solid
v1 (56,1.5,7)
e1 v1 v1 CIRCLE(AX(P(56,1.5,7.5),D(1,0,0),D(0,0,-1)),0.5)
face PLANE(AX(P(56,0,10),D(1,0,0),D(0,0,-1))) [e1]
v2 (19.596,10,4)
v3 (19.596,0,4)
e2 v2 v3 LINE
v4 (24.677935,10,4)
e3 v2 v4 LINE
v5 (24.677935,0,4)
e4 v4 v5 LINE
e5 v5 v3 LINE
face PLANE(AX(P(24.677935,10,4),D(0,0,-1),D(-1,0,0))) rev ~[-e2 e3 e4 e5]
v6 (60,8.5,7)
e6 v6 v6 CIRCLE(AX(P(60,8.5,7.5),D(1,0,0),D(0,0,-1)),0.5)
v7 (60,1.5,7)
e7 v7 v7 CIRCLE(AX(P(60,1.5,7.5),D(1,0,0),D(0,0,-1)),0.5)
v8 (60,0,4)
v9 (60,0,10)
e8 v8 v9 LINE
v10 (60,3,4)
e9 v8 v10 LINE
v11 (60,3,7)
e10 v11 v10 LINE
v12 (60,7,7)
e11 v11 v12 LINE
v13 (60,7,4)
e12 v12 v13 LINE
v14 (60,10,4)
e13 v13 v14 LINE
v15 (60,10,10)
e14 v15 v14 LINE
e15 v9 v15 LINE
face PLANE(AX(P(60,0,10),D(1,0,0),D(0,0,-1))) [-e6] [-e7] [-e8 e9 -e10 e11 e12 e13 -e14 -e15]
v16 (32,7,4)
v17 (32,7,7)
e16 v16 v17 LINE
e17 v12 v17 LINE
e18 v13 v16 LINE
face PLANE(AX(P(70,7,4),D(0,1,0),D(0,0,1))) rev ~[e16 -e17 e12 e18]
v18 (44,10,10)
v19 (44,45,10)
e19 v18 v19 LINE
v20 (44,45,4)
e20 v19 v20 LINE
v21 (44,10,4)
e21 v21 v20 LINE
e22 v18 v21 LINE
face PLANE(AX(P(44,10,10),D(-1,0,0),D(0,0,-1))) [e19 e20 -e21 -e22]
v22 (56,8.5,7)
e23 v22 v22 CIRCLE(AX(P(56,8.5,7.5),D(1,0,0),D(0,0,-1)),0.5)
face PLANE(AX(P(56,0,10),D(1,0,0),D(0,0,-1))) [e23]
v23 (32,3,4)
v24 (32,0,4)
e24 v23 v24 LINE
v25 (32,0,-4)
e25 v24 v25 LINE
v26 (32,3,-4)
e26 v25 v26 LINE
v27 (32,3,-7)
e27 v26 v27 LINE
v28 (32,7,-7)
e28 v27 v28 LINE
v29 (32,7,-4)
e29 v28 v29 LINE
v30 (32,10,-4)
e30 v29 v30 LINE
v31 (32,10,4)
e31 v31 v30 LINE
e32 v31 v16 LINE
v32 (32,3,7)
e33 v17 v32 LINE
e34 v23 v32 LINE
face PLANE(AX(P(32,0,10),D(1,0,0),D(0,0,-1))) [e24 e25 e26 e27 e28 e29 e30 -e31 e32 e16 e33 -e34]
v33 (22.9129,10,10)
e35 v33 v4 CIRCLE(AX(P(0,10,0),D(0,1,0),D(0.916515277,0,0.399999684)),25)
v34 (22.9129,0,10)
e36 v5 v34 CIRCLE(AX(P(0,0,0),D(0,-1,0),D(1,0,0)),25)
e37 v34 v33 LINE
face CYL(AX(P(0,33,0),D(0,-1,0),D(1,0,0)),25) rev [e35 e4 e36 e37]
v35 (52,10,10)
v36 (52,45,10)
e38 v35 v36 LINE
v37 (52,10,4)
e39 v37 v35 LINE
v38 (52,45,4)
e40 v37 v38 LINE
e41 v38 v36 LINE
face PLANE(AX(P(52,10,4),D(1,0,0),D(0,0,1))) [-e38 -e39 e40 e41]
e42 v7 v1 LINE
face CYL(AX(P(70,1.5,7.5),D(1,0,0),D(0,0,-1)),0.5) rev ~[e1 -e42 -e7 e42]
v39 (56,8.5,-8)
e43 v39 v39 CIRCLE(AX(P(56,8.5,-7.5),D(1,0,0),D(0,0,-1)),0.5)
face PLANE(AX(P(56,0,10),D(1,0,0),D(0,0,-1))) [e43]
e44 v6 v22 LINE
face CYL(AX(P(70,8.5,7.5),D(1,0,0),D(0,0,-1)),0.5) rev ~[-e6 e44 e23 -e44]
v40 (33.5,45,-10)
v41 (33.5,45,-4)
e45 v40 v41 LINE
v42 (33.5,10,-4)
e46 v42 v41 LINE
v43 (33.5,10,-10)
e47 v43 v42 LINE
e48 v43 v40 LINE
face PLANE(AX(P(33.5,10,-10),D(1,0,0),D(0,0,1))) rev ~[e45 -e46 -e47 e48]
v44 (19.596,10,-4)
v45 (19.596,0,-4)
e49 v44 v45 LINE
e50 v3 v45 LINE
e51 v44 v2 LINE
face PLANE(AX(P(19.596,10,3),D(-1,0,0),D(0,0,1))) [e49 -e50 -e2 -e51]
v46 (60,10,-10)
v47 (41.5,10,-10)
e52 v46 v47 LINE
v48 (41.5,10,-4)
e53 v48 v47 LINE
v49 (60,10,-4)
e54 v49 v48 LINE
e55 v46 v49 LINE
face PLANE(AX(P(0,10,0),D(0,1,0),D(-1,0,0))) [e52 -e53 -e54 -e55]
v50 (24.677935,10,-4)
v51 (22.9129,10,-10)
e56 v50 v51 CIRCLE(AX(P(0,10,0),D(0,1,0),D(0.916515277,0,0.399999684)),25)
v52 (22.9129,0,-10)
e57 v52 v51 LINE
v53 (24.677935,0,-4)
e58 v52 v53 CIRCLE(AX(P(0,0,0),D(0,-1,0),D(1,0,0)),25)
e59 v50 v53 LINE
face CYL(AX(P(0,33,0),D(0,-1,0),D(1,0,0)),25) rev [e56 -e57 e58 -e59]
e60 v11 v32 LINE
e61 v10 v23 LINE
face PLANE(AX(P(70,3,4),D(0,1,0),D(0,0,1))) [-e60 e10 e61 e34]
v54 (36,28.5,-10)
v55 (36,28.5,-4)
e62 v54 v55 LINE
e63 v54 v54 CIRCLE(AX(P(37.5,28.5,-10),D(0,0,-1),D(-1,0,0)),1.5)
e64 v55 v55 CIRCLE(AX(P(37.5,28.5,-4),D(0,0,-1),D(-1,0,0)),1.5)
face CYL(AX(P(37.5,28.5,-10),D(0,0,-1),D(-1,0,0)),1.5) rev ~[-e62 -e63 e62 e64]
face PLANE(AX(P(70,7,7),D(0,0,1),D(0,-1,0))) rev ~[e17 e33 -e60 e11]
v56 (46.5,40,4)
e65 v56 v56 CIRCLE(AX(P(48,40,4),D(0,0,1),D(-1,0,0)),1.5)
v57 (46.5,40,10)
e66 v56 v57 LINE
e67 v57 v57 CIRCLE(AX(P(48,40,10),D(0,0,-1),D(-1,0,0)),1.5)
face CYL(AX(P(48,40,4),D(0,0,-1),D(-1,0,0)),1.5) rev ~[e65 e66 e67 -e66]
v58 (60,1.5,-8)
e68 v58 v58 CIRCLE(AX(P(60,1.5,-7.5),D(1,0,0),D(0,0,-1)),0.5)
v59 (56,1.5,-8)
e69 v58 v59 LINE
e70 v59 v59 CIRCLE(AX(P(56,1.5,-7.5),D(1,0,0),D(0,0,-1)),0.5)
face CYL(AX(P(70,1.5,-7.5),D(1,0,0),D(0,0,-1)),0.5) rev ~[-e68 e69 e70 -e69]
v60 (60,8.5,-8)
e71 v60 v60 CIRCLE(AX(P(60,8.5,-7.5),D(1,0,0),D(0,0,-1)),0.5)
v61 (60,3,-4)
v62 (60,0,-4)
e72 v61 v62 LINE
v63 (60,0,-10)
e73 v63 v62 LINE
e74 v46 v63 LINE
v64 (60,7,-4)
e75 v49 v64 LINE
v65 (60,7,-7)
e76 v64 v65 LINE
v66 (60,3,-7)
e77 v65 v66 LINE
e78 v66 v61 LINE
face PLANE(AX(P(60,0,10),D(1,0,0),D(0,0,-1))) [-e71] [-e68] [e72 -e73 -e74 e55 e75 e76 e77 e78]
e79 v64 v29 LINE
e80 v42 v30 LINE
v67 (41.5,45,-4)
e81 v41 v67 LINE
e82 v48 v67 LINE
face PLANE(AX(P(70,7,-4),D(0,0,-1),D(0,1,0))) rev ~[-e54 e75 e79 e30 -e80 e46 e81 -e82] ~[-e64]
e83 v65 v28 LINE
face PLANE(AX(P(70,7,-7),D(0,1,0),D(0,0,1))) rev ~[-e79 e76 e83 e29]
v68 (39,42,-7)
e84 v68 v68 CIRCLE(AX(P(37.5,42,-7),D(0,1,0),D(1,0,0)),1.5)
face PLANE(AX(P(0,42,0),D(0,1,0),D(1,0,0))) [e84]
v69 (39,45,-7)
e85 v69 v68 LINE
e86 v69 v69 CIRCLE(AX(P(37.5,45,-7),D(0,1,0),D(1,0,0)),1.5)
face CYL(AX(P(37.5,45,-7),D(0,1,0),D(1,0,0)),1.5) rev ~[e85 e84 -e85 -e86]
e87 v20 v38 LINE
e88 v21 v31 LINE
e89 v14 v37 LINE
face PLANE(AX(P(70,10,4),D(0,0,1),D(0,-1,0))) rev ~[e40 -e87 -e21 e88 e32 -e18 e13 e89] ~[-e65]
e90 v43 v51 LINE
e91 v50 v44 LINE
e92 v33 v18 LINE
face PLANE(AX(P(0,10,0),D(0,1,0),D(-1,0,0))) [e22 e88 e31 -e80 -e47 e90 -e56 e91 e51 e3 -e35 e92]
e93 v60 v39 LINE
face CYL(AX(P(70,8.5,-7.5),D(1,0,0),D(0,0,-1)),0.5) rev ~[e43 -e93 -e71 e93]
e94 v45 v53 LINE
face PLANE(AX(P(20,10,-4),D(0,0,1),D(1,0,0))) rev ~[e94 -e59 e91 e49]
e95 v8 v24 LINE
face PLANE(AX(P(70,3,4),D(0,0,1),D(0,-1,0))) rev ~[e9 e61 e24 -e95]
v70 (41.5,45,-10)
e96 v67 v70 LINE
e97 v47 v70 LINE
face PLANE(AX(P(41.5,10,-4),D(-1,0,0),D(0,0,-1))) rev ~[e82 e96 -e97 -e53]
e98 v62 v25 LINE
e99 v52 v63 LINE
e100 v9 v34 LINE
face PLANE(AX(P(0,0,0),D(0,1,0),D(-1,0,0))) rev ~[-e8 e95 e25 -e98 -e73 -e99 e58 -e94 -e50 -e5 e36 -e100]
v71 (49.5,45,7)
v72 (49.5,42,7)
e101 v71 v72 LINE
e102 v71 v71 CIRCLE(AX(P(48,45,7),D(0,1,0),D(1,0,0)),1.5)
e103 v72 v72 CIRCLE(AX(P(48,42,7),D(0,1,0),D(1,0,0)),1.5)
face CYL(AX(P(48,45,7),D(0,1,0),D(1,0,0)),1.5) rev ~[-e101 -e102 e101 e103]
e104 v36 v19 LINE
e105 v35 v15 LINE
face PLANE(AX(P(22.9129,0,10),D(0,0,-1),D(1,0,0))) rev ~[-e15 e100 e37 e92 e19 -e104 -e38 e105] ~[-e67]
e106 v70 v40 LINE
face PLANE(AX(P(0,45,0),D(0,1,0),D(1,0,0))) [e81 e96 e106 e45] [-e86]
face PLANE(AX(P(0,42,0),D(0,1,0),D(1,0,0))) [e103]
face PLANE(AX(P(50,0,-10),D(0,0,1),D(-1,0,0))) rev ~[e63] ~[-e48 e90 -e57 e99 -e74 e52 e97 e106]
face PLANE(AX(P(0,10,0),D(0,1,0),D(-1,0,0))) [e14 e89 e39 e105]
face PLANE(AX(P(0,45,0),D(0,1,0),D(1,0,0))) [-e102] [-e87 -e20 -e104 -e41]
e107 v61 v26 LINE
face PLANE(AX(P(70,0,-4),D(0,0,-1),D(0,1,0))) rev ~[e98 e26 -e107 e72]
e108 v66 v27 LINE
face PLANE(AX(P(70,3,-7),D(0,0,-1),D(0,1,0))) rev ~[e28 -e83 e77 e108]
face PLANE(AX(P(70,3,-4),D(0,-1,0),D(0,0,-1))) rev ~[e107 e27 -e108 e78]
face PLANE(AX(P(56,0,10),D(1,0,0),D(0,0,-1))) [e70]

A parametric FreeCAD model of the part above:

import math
import FreeCAD as App
import Part
import Sketcher
Q = App.Units.Quantity


def add_polygon(sketch, points):
    """Adds a closed chain of lines whose ends are joined by coincident constraints."""
    first, n = sketch.GeometryCount, len(points)
    for a, b in zip(points, points[1:] + points[:1]):
        sketch.addGeometry(Part.LineSegment(App.Vector(*a, 0), App.Vector(*b, 0)), False)
    for i in range(n):
        sketch.addConstraint(Sketcher.Constraint("Coincident", first + i, 2, first + (i + 1) % n, 1))

doc = App.newDocument("Part")
body = doc.addObject("PartDesign::Body", "Body")

# Sketch on XZ plane
sketch1 = doc.addObject("Sketcher::SketchObject", "Sketch")
body.addObject(sketch1)
sketch1.AttachmentSupport = (doc.XZ_Plane, [""])
sketch1.MapMode = "FlatFace"
sketch1.addGeometry([
    Part.LineSegment(App.Vector(-51, 49, 0), App.Vector(-35, 37, 0)),  # 0
    Part.LineSegment(App.Vector(-35, 37, 0), App.Vector(-13, 22, 0)),  # 1
    Part.ArcOfCircle(Part.Circle(App.Vector(0, 0, 0), App.Vector(0, 0, 1), 25), math.radians(24), math.radians(120)),  # 2
    Part.LineSegment(App.Vector(23, 10, 0), App.Vector(70, 10, 0)),  # 3
    Part.LineSegment(App.Vector(70, 10, 0), App.Vector(70, -10, 0)),  # 4
    Part.LineSegment(App.Vector(70, -10, 0), App.Vector(23, -10, 0)),  # 5
    Part.ArcOfCircle(Part.Circle(App.Vector(0, 0, 0), App.Vector(0, 0, 1), 25), math.radians(-120), math.radians(-24)),  # 6
    Part.LineSegment(App.Vector(-13, -22, 0), App.Vector(-35, -37, 0)),  # 7
    Part.LineSegment(App.Vector(-35, -37, 0), App.Vector(-51, -49, 0)),  # 8
    Part.LineSegment(App.Vector(-51, -49, 0), App.Vector(-57, -41, 0)),  # 9
    Part.LineSegment(App.Vector(-57, -41, 0), App.Vector(-63, -33, 0)),  # 10
    Part.LineSegment(App.Vector(-63, -33, 0), App.Vector(-46, -21, 0)),  # 11
    Part.LineSegment(App.Vector(-46, -21, 0), App.Vector(-24, -5, 0)),  # 12
    Part.ArcOfCircle(Part.Circle(App.Vector(0, 0, 0), App.Vector(0, 0, 1), 25), math.radians(168), math.radians(192)),  # 13
    Part.LineSegment(App.Vector(-24, 5, 0), App.Vector(-46, 21, 0)),  # 14
    Part.LineSegment(App.Vector(-46, 21, 0), App.Vector(-63, 33, 0)),  # 15
    Part.LineSegment(App.Vector(-63, 33, 0), App.Vector(-51, 49, 0)),  # 16
], False)
sketch1.addConstraint([
    Sketcher.Constraint("Coincident", 0, 2, 1, 1),
    Sketcher.Constraint("Coincident", 1, 2, 2, 2),
    Sketcher.Constraint("Coincident", 2, 1, 3, 1),
    Sketcher.Constraint("Coincident", 3, 2, 4, 1),
    Sketcher.Constraint("Coincident", 4, 2, 5, 1),
    Sketcher.Constraint("Coincident", 5, 2, 6, 2),
    Sketcher.Constraint("Coincident", 6, 1, 7, 1),
    Sketcher.Constraint("Coincident", 7, 2, 8, 1),
    Sketcher.Constraint("Coincident", 8, 2, 9, 1),
    Sketcher.Constraint("Coincident", 9, 2, 10, 1),
    Sketcher.Constraint("Coincident", 10, 2, 11, 1),
    Sketcher.Constraint("Coincident", 11, 2, 12, 1),
    Sketcher.Constraint("Coincident", 12, 2, 13, 2),
    Sketcher.Constraint("Coincident", 13, 1, 14, 1),
    Sketcher.Constraint("Coincident", 14, 2, 15, 1),
    Sketcher.Constraint("Coincident", 15, 2, 16, 1),
    Sketcher.Constraint("Coincident", 16, 2, 0, 1),
    Sketcher.Constraint("Horizontal", 3),
    Sketcher.Constraint("Vertical", 4),
    Sketcher.Constraint("Horizontal", 5),
    Sketcher.Constraint("Coincident", 2, 3, -1, 1),
    Sketcher.Constraint("Coincident", 6, 3, -1, 1),
    Sketcher.Constraint("Coincident", 13, 3, -1, 1),
    Sketcher.Constraint("Equal", 2, 6),
    Sketcher.Constraint("Equal", 6, 13),
    Sketcher.Constraint("Symmetric", 0, 2, 7, 2, -1),
    Sketcher.Constraint("Symmetric", 11, 2, 14, 2, -1),
    Sketcher.Constraint("Symmetric", 10, 2, 15, 2, -1),
    Sketcher.Constraint("Symmetric", 8, 2, 16, 2, -1),
    Sketcher.Constraint("Parallel", 0, 1),
    Sketcher.Constraint("Parallel", 7, 8),
    Sketcher.Constraint("Perpendicular", 8, 9),
    Sketcher.Constraint("Parallel", 9, 10),
    Sketcher.Constraint("Perpendicular", 10, 11),
    Sketcher.Constraint("Parallel", 11, 12),
    Sketcher.Constraint("Parallel", 1, 14),
    Sketcher.Constraint("Vertical", 2, 1, 5, 2),
    Sketcher.Constraint("Equal", 9, 10),
    Sketcher.Constraint("Equal", 8, 11),
    Sketcher.Constraint("Equal", 7, 12),
    Sketcher.Constraint("Equal", 15, 16),
    Sketcher.Constraint("Radius", 2, 25.0),
    Sketcher.Constraint("DistanceY", 4, 2, 4, 1, 20.0),
    Sketcher.Constraint("Angle", 0, Q("-36 deg")),
    Sketcher.Constraint("Distance", 0, 20.0),
    Sketcher.Constraint("DistanceX", -1, 1, 3, 2, 70.0),
    Sketcher.Constraint("DistanceX", 10, 2, 6, 1, 49.85),
])
pad1 = doc.addObject("PartDesign::Pad", "Pad")
body.addObject(pad1)
pad1.Profile = sketch1
pad1.Length = 10
pad1.Reversed = True

# Sketch on an angled plane
sketch2 = doc.addObject("Sketcher::SketchObject", "Sketch001")
body.addObject(sketch2)
sketch2.Placement = App.Placement(App.Vector(-62.509, 0, -33.0548), App.Rotation(App.Vector(-0.587785252, 0, 0.809016994), App.Vector(0, 0.999999999, 0), App.Vector(-0.809016994, 0, -0.587785252), "ZXY"))
add_polygon(sketch2, [(-17, 7), (-17, 3), (-14, 3), (-14, 0), (-6, 0), (-6, 3), (-3, 3), (-3, 7), (-6, 7), (-6, 10), (-14, 10), (-14, 7)])  # lines 0-11
sketch2.addConstraint([
    Sketcher.Constraint("Vertical", 0),
    Sketcher.Constraint("Horizontal", 1),
    Sketcher.Constraint("Vertical", 2),
    Sketcher.Constraint("Horizontal", 3),
    Sketcher.Constraint("Vertical", 4),
    Sketcher.Constraint("Horizontal", 5),
    Sketcher.Constraint("Vertical", 6),
    Sketcher.Constraint("Horizontal", 7),
    Sketcher.Constraint("Vertical", 8),
    Sketcher.Constraint("Horizontal", 9),
    Sketcher.Constraint("Vertical", 10),
    Sketcher.Constraint("Horizontal", 11),
    Sketcher.Constraint("PointOnObject", 2, 2, -1),
    Sketcher.Constraint("Horizontal", 1, 2, 4, 2),
    Sketcher.Constraint("Horizontal", 7, 2, 10, 2),
    Sketcher.Constraint("Vertical", 4, 2, 7, 2),
    Sketcher.Constraint("Vertical", 2, 2, 9, 2),
    Sketcher.Constraint("Equal", 1, 5),
    Sketcher.Constraint("Equal", 11, 2),
    Sketcher.Constraint("Equal", 4, 8),
    Sketcher.Constraint("DistanceX", 1, 1, 1, 2, 3.0),
    Sketcher.Constraint("DistanceX", 3, 1, 3, 2, 8.0),
    Sketcher.Constraint("DistanceY", 0, 2, 0, 1, 4.0),
    Sketcher.Constraint("DistanceX", 1, 2, -1, 1, 14.0),
])
pocket1 = doc.addObject("PartDesign::Pocket", "Pocket")
body.addObject(pocket1)
pocket1.Profile = sketch2
pocket1.Length = 38

# Sketch on an angled plane
sketch3 = doc.addObject("Sketcher::SketchObject", "Sketch002")
body.addObject(sketch3)
sketch3.Placement = App.Placement(App.Vector(-50.7533, 0, 49.2351), App.Rotation(App.Vector(0.587785252, 0, 0.809016994), App.Vector(0, 0.999999999, 0), App.Vector(-0.809016994, 0, 0.587785252), "ZXY"))
add_polygon(sketch3, [(-17, 7), (-17, 3), (-14, 3), (-14, 0), (-6, 0), (-6, 3), (-3, 3), (-3, 7), (-6, 7), (-6, 10), (-14, 10), (-14, 7)])  # lines 0-11
sketch3.addConstraint([
    Sketcher.Constraint("Vertical", 0),
    Sketcher.Constraint("Horizontal", 1),
    Sketcher.Constraint("Vertical", 2),
    Sketcher.Constraint("Horizontal", 3),
    Sketcher.Constraint("Vertical", 4),
    Sketcher.Constraint("Horizontal", 5),
    Sketcher.Constraint("Vertical", 6),
    Sketcher.Constraint("Horizontal", 7),
    Sketcher.Constraint("Vertical", 8),
    Sketcher.Constraint("Horizontal", 9),
    Sketcher.Constraint("Vertical", 10),
    Sketcher.Constraint("Horizontal", 11),
    Sketcher.Constraint("PointOnObject", 2, 2, -1),
    Sketcher.Constraint("Horizontal", 1, 2, 4, 2),
    Sketcher.Constraint("Horizontal", 7, 2, 10, 2),
    Sketcher.Constraint("Vertical", 4, 2, 7, 2),
    Sketcher.Constraint("Vertical", 2, 2, 9, 2),
    Sketcher.Constraint("Equal", 1, 5),
    Sketcher.Constraint("Equal", 11, 2),
    Sketcher.Constraint("Equal", 4, 8),
    Sketcher.Constraint("DistanceX", 1, 1, 1, 2, 3.0),
    Sketcher.Constraint("DistanceX", 3, 1, 3, 2, 8.0),
    Sketcher.Constraint("DistanceY", 0, 2, 0, 1, 4.0),
    Sketcher.Constraint("DistanceX", 1, 2, -1, 1, 14.0),
])
pocket2 = doc.addObject("PartDesign::Pocket", "Pocket001")
body.addObject(pocket2)
pocket2.Profile = sketch3
pocket2.Length = 38

# Sketch on YZ plane
sketch4 = doc.addObject("Sketcher::SketchObject", "Sketch003")
body.addObject(sketch4)
sketch4.AttachmentSupport = (doc.YZ_Plane, [""])
sketch4.MapMode = "FlatFace"
sketch4.AttachmentOffset = App.Placement(App.Vector(0, 0, 70), App.Rotation())
add_polygon(sketch4, [(0, 4), (0, -4), (3, -4), (3, -7), (7, -7), (7, -4), (10, -4), (10, 4), (7, 4), (7, 7), (3, 7), (3, 4)])  # lines 0-11
sketch4.addConstraint([
    Sketcher.Constraint("Vertical", 0),
    Sketcher.Constraint("Horizontal", 1),
    Sketcher.Constraint("Vertical", 2),
    Sketcher.Constraint("Horizontal", 3),
    Sketcher.Constraint("Vertical", 4),
    Sketcher.Constraint("Horizontal", 5),
    Sketcher.Constraint("Vertical", 6),
    Sketcher.Constraint("Horizontal", 7),
    Sketcher.Constraint("Vertical", 8),
    Sketcher.Constraint("Horizontal", 9),
    Sketcher.Constraint("Vertical", 10),
    Sketcher.Constraint("Horizontal", 11),
    Sketcher.Constraint("Symmetric", 0, 2, 11, 2, -1, 1),
    Sketcher.Constraint("Symmetric", 4, 2, 7, 2, -1),
    Sketcher.Constraint("Symmetric", 2, 2, 9, 2, -1),
    Sketcher.Constraint("Horizontal", 1, 2, 4, 2),
    Sketcher.Constraint("Equal", 1, 5),
    Sketcher.Constraint("Equal", 11, 2),
    Sketcher.Constraint("DistanceX", 1, 1, 1, 2, 3.0),
    Sketcher.Constraint("DistanceX", 3, 1, 3, 2, 4.0),
    Sketcher.Constraint("DistanceY", 0, 2, 0, 1, 8.0),
])
pocket3 = doc.addObject("PartDesign::Pocket", "Pocket002")
body.addObject(pocket3)
pocket3.Profile = sketch4
pocket3.Length = 38

# Sketch on YZ plane
sketch5 = doc.addObject("Sketcher::SketchObject", "Sketch004")
body.addObject(sketch5)
sketch5.AttachmentSupport = (doc.YZ_Plane, [""])
sketch5.MapMode = "FlatFace"
sketch5.AttachmentOffset = App.Placement(App.Vector(0, 0, 70), App.Rotation())
add_polygon(sketch5, [(0, -10), (10, -10), (10, 10), (0, 10)])  # lines 0-3
sketch5.addGeometry(Part.Circle(App.Vector(1.5, 7.5, 0), App.Vector(0, 0, 1), 0.5), False)  # 4
sketch5.addGeometry(Part.Circle(App.Vector(1.5, -7.5, 0), App.Vector(0, 0, 1), 0.5), False)  # 5
sketch5.addGeometry(Part.Circle(App.Vector(8.5, 7.5, 0), App.Vector(0, 0, 1), 0.5), False)  # 6
sketch5.addGeometry(Part.Circle(App.Vector(8.5, -7.5, 0), App.Vector(0, 0, 1), 0.5), False)  # 7
sketch5.addConstraint([
    Sketcher.Constraint("Horizontal", 0),
    Sketcher.Constraint("Vertical", 1),
    Sketcher.Constraint("Horizontal", 2),
    Sketcher.Constraint("Vertical", 3),
    Sketcher.Constraint("Equal", 4, 5),
    Sketcher.Constraint("Equal", 5, 6),
    Sketcher.Constraint("Equal", 6, 7),
    Sketcher.Constraint("Symmetric", 2, 2, 3, 2, -1, 1),
    Sketcher.Constraint("Symmetric", 4, 3, 5, 3, -1),
    Sketcher.Constraint("Symmetric", 6, 3, 7, 3, -1),
    Sketcher.Constraint("Horizontal", 4, 3, 6, 3),
    Sketcher.Constraint("Diameter", 4, 1.0),
    Sketcher.Constraint("DistanceY", 1, 1, 1, 2, 20.0),
    Sketcher.Constraint("DistanceY", 0, 2, 7, 3, 2.5),
    Sketcher.Constraint("DistanceX", 0, 1, 0, 2, 10.0),
    Sketcher.Constraint("DistanceX", 4, 3, 6, 3, 7.0),
    Sketcher.Constraint("DistanceX", -1, 1, 4, 3, 1.5),
])
pocket4 = doc.addObject("PartDesign::Pocket", "Pocket003")
body.addObject(pocket4)
pocket4.Profile = sketch5
pocket4.Length = 10

# Sketch on YZ plane
sketch6 = doc.addObject("Sketcher::SketchObject", "Sketch005")
body.addObject(sketch6)
sketch6.AttachmentSupport = (doc.YZ_Plane, [""])
sketch6.MapMode = "FlatFace"
sketch6.AttachmentOffset = App.Placement(App.Vector(0, 0, 70), App.Rotation())
sketch6.addGeometry([
    Part.Circle(App.Vector(8.5, 7.5, 0), App.Vector(0, 0, 1), 0.5),
    Part.Circle(App.Vector(1.5, 7.5, 0), App.Vector(0, 0, 1), 0.5),
    Part.Circle(App.Vector(1.5, -7.5, 0), App.Vector(0, 0, 1), 0.5),
    Part.Circle(App.Vector(8.5, -7.5, 0), App.Vector(0, 0, 1), 0.5),
], False)
sketch6.addConstraint([
    Sketcher.Constraint("Equal", 0, 1),
    Sketcher.Constraint("Equal", 1, 2),
    Sketcher.Constraint("Equal", 2, 3),
    Sketcher.Constraint("Symmetric", 1, 3, 2, 3, -1),
    Sketcher.Constraint("Symmetric", 0, 3, 3, 3, -1),
    Sketcher.Constraint("Horizontal", 0, 3, 1, 3),
    Sketcher.Constraint("Diameter", 0, 1.0),
    Sketcher.Constraint("DistanceX", 1, 3, 0, 3, 7.0),
    Sketcher.Constraint("DistanceY", 2, 3, 1, 3, 15.0),
    Sketcher.Constraint("DistanceX", -1, 1, 0, 3, 8.5),
])
pocket5 = doc.addObject("PartDesign::Pocket", "Pocket004")
body.addObject(pocket5)
pocket5.Profile = sketch6
pocket5.Length = 14

# Sketch on an angled plane
sketch7 = doc.addObject("Sketcher::SketchObject", "Sketch006")
body.addObject(sketch7)
sketch7.Placement = App.Placement(App.Vector(-50.7533, 0, -49.2351), App.Rotation(App.Vector(-0.587785252, 0, 0.809016994), App.Vector(0, 0.999999999, 0), App.Vector(-0.809016994, 0, -0.587785252), "ZXY"))
add_polygon(sketch7, [(20, 0), (20, 10), (0, 10), (0, 0)])  # lines 0-3
sketch7.addGeometry(Part.Circle(App.Vector(2.5, 1.5, 0), App.Vector(0, 0, 1), 0.5), False)  # 4
sketch7.addGeometry(Part.Circle(App.Vector(17.5, 1.5, 0), App.Vector(0, 0, 1), 0.5), False)  # 5
sketch7.addGeometry(Part.Circle(App.Vector(2.5, 8.5, 0), App.Vector(0, 0, 1), 0.5), False)  # 6
sketch7.addGeometry(Part.Circle(App.Vector(17.5, 8.5, 0), App.Vector(0, 0, 1), 0.5), False)  # 7
sketch7.addConstraint([
    Sketcher.Constraint("Vertical", 0),
    Sketcher.Constraint("Horizontal", 1),
    Sketcher.Constraint("Vertical", 2),
    Sketcher.Constraint("Horizontal", 3),
    Sketcher.Constraint("Coincident", 2, 2, -1, 1),
    Sketcher.Constraint("Equal", 4, 5),
    Sketcher.Constraint("Equal", 5, 6),
    Sketcher.Constraint("Equal", 6, 7),
    Sketcher.Constraint("Horizontal", 4, 3, 5, 3),
    Sketcher.Constraint("Horizontal", 6, 3, 7, 3),
    Sketcher.Constraint("Vertical", 4, 3, 6, 3),
    Sketcher.Constraint("Vertical", 5, 3, 7, 3),
    Sketcher.Constraint("Diameter", 4, 1.0),
    Sketcher.Constraint("DistanceX", 1, 2, 1, 1, 20.0),
    Sketcher.Constraint("DistanceX", -1, 1, 4, 3, 2.5),
    Sketcher.Constraint("DistanceX", 7, 3, 0, 2, 2.5),
    Sketcher.Constraint("DistanceY", 0, 1, 0, 2, 10.0),
    Sketcher.Constraint("DistanceY", 4, 3, 6, 3, 7.0),
    Sketcher.Constraint("DistanceY", -1, 1, 4, 3, 1.5),
])
pocket6 = doc.addObject("PartDesign::Pocket", "Pocket005")
body.addObject(pocket6)
pocket6.Profile = sketch7
pocket6.Length = 10

# Sketch on an angled plane
sketch8 = doc.addObject("Sketcher::SketchObject", "Sketch007")
body.addObject(sketch8)
sketch8.Placement = App.Placement(App.Vector(-50.7533, 0, -49.2351), App.Rotation(App.Vector(-0.587785252, 0, 0.809016994), App.Vector(0, 0.999999999, 0), App.Vector(-0.809016994, 0, -0.587785252), "ZXY"))
sketch8.addGeometry([
    Part.Circle(App.Vector(2.5, 8.5, 0), App.Vector(0, 0, 1), 0.5),
    Part.Circle(App.Vector(2.5, 1.5, 0), App.Vector(0, 0, 1), 0.5),
    Part.Circle(App.Vector(17.5, 1.5, 0), App.Vector(0, 0, 1), 0.5),
    Part.Circle(App.Vector(17.5, 8.5, 0), App.Vector(0, 0, 1), 0.5),
], False)
sketch8.addConstraint([
    Sketcher.Constraint("Equal", 0, 1),
    Sketcher.Constraint("Equal", 1, 2),
    Sketcher.Constraint("Equal", 2, 3),
    Sketcher.Constraint("Horizontal", 1, 3, 2, 3),
    Sketcher.Constraint("Horizontal", 0, 3, 3, 3),
    Sketcher.Constraint("Vertical", 0, 3, 1, 3),
    Sketcher.Constraint("Vertical", 2, 3, 3, 3),
    Sketcher.Constraint("Diameter", 0, 1.0),
    Sketcher.Constraint("DistanceX", -1, 1, 0, 3, 2.5),
    Sketcher.Constraint("DistanceY", 1, 3, 0, 3, 7.0),
    Sketcher.Constraint("DistanceX", 1, 3, 2, 3, 15.0),
    Sketcher.Constraint("DistanceY", -1, 1, 0, 3, 8.5),
])
pocket7 = doc.addObject("PartDesign::Pocket", "Pocket006")
body.addObject(pocket7)
pocket7.Profile = sketch8
pocket7.Length = 14

# Sketch on an angled plane
sketch9 = doc.addObject("Sketcher::SketchObject", "Sketch008")
body.addObject(sketch9)
sketch9.Placement = App.Placement(App.Vector(-62.509, 0, 33.0548), App.Rotation(App.Vector(0.587785252, 0, 0.809016994), App.Vector(0, 0.999999999, 0), App.Vector(-0.809016994, 0, 0.587785252), "ZXY"))
add_polygon(sketch9, [(20, 0), (20, 10), (0, 10), (0, 0)])  # lines 0-3
sketch9.addGeometry(Part.Circle(App.Vector(2.5, 1.5, 0), App.Vector(0, 0, 1), 0.5), False)  # 4
sketch9.addGeometry(Part.Circle(App.Vector(17.5, 1.5, 0), App.Vector(0, 0, 1), 0.5), False)  # 5
sketch9.addGeometry(Part.Circle(App.Vector(2.5, 8.5, 0), App.Vector(0, 0, 1), 0.5), False)  # 6
sketch9.addGeometry(Part.Circle(App.Vector(17.5, 8.5, 0), App.Vector(0, 0, 1), 0.5), False)  # 7
sketch9.addConstraint([
    Sketcher.Constraint("Vertical", 0),
    Sketcher.Constraint("Horizontal", 1),
    Sketcher.Constraint("Vertical", 2),
    Sketcher.Constraint("Horizontal", 3),
    Sketcher.Constraint("Coincident", 2, 2, -1, 1),
    Sketcher.Constraint("Equal", 4, 5),
    Sketcher.Constraint("Equal", 5, 6),
    Sketcher.Constraint("Equal", 6, 7),
    Sketcher.Constraint("Horizontal", 4, 3, 5, 3),
    Sketcher.Constraint("Horizontal", 6, 3, 7, 3),
    Sketcher.Constraint("Vertical", 4, 3, 6, 3),
    Sketcher.Constraint("Vertical", 5, 3, 7, 3),
    Sketcher.Constraint("Diameter", 4, 1.0),
    Sketcher.Constraint("DistanceX", 1, 2, 1, 1, 20.0),
    Sketcher.Constraint("DistanceX", -1, 1, 4, 3, 2.5),
    Sketcher.Constraint("DistanceX", 7, 3, 0, 2, 2.5),
    Sketcher.Constraint("DistanceY", 0, 1, 0, 2, 10.0),
    Sketcher.Constraint("DistanceY", 4, 3, 6, 3, 7.0),
    Sketcher.Constraint("DistanceY", -1, 1, 4, 3, 1.5),
])
pocket8 = doc.addObject("PartDesign::Pocket", "Pocket007")
body.addObject(pocket8)
pocket8.Profile = sketch9
pocket8.Length = 10

# Sketch on an angled plane
sketch10 = doc.addObject("Sketcher::SketchObject", "Sketch009")
body.addObject(sketch10)
sketch10.Placement = App.Placement(App.Vector(-62.509, 0, 33.0548), App.Rotation(App.Vector(0.587785252, 0, 0.809016994), App.Vector(0, 0.999999999, 0), App.Vector(-0.809016994, 0, 0.587785252), "ZXY"))
sketch10.addGeometry([
    Part.Circle(App.Vector(2.5, 8.5, 0), App.Vector(0, 0, 1), 0.5),
    Part.Circle(App.Vector(2.5, 1.5, 0), App.Vector(0, 0, 1), 0.5),
    Part.Circle(App.Vector(17.5, 1.5, 0), App.Vector(0, 0, 1), 0.5),
    Part.Circle(App.Vector(17.5, 8.5, 0), App.Vector(0, 0, 1), 0.5),
], False)
sketch10.addConstraint([
    Sketcher.Constraint("Equal", 0, 1),
    Sketcher.Constraint("Equal", 1, 2),
    Sketcher.Constraint("Equal", 2, 3),
    Sketcher.Constraint("Horizontal", 1, 3, 2, 3),
    Sketcher.Constraint("Horizontal", 0, 3, 3, 3),
    Sketcher.Constraint("Vertical", 0, 3, 1, 3),
    Sketcher.Constraint("Vertical", 2, 3, 3, 3),
    Sketcher.Constraint("Diameter", 0, 1.0),
    Sketcher.Constraint("DistanceX", -1, 1, 0, 3, 2.5),
    Sketcher.Constraint("DistanceY", 1, 3, 0, 3, 7.0),
    Sketcher.Constraint("DistanceX", 1, 3, 2, 3, 15.0),
    Sketcher.Constraint("DistanceY", -1, 1, 0, 3, 8.5),
])
pocket9 = doc.addObject("PartDesign::Pocket", "Pocket008")
body.addObject(pocket9)
pocket9.Profile = sketch10
pocket9.Length = 14

# Sketch on XZ plane
sketch11 = doc.addObject("Sketcher::SketchObject", "Sketch010")
body.addObject(sketch11)
sketch11.AttachmentSupport = (doc.XZ_Plane, [""])
sketch11.MapMode = "FlatFace"
sketch11.AttachmentOffset = App.Placement(App.Vector(0, 0, -10), App.Rotation())
add_polygon(sketch11, [(52, 4), (44, 4), (44, 10), (52, 10)])  # lines 0-3
add_polygon(sketch11, [(34, -10), (34, -4), (42, -4), (42, -10)])  # lines 4-7
add_polygon(sketch11, [(-21, 28), (-25, 23), (-31, 28), (-28, 32)])  # lines 8-11
add_polygon(sketch11, [(-48, 22), (-44, 27), (-38, 23), (-41, 18)])  # lines 12-15
add_polygon(sketch11, [(-33, -12), (-29, -16), (-36, -21), (-39, -16)])  # lines 16-19
add_polygon(sketch11, [(-36, -39), (-40, -34), (-33, -29), (-30, -34)])  # lines 20-23
sketch11.addConstraint([
    Sketcher.Constraint("Horizontal", 0),
    Sketcher.Constraint("Vertical", 1),
    Sketcher.Constraint("Horizontal", 2),
    Sketcher.Constraint("Vertical", 3),
    Sketcher.Constraint("Vertical", 4),
    Sketcher.Constraint("Horizontal", 5),
    Sketcher.Constraint("Vertical", 6),
    Sketcher.Constraint("Horizontal", 7),
    Sketcher.Constraint("Parallel", 8, 10),
    Sketcher.Constraint("Parallel", 9, 11),
    Sketcher.Constraint("Perpendicular", 11, 12),
    Sketcher.Constraint("Perpendicular", 12, 13),
    Sketcher.Constraint("Perpendicular", 13, 14),
    Sketcher.Constraint("Perpendicular", 14, 15),
    Sketcher.Constraint("Perpendicular", 16, 17),
    Sketcher.Constraint("Perpendicular", 17, 18),
    Sketcher.Constraint("Perpendicular", 18, 19),
    Sketcher.Constraint("Perpendicular", 19, 20),
    Sketcher.Constraint("Perpendicular", 20, 21),
    Sketcher.Constraint("Perpendicular", 21, 22),
    Sketcher.Constraint("Perpendicular", 22, 23),
    Sketcher.Constraint("Equal", 2, 5),
    Sketcher.Constraint("Equal", 3, 4),
    Sketcher.Constraint("Equal", 10, 12),
    Sketcher.Constraint("Equal", 11, 13),
    Sketcher.Constraint("Equal", 14, 16),
    Sketcher.Constraint("Equal", 15, 17),
    Sketcher.Constraint("Equal", 18, 20),
    Sketcher.Constraint("Equal", 19, 21),
    Sketcher.Constraint("DistanceX", 0, 2, 0, 1, 8.0),
    Sketcher.Constraint("Distance", 9, 8.0),
    Sketcher.Constraint("DistanceY", 4, 2, 0, 2, 8.0),
    Sketcher.Constraint("DistanceY", 1, 1, 1, 2, 6.0),
    Sketcher.Constraint("Angle", 9, Q("144.0002 deg")),
    Sketcher.Constraint("Angle", 16, Q("-54 deg")),
    Sketcher.Constraint("Distance", 12, 6.0),
    Sketcher.Constraint("DistanceX", -1, 1, 0, 2, 44.0),
    Sketcher.Constraint("DistanceY", -1, 1, 0, 2, 4.0),
    Sketcher.Constraint("DistanceX", -1, 1, 4, 2, 33.5),
    Sketcher.Constraint("DistanceX", 12, 2, -1, 1, 44.42),
    Sketcher.Constraint("DistanceX", 19, 2, -1, 1, 32.98),
    Sketcher.Constraint("DistanceX", 9, 2, 16, 2, 1.77),
    Sketcher.Constraint("DistanceY", -1, 1, 8, 2, 22.927),
    Sketcher.Constraint("DistanceX", 10, 2, -1, 1, 27.661),
    Sketcher.Constraint("DistanceY", 17, 2, -1, 1, 21.157),
    Sketcher.Constraint("DistanceY", 20, 2, -1, 1, 33.801),
    Sketcher.Constraint("DistanceX", 22, 2, -1, 1, 29.719),
    Sketcher.Constraint("DistanceY", 12, 2, 10, 2, 5.129),
])
pad2 = doc.addObject("PartDesign::Pad", "Pad001")
body.addObject(pad2)
pad2.Profile = sketch11
pad2.Length = 35
pad2.Reversed = True

# Sketch on XY plane
sketch12 = doc.addObject("Sketcher::SketchObject", "Sketch011")
body.addObject(sketch12)
sketch12.AttachmentSupport = (doc.XY_Plane, [""])
sketch12.MapMode = "FlatFace"
sketch12.AttachmentOffset = App.Placement(App.Vector(0, 0, -10), App.Rotation())
sketch12.addGeometry(Part.Circle(App.Vector(37.5, 28.5, 0), App.Vector(0, 0, 1), 1.5), False)
sketch12.addConstraint([
    Sketcher.Constraint("Diameter", 0, 3.0),
    Sketcher.Constraint("DistanceX", -1, 1, 0, 3, 37.5),
    Sketcher.Constraint("DistanceY", -1, 1, 0, 3, 28.5),
])
pocket10 = doc.addObject("PartDesign::Pocket", "Pocket009")
body.addObject(pocket10)
pocket10.Profile = sketch12
pocket10.Type = "UpToFirst"
pocket10.Reversed = True

# Sketch on XY plane
sketch13 = doc.addObject("Sketcher::SketchObject", "Sketch012")
body.addObject(sketch13)
sketch13.AttachmentSupport = (doc.XY_Plane, [""])
sketch13.MapMode = "FlatFace"
sketch13.AttachmentOffset = App.Placement(App.Vector(0, 0, 4), App.Rotation())
sketch13.addGeometry(Part.Circle(App.Vector(48, 40, 0), App.Vector(0, 0, 1), 1.5), False)
sketch13.addConstraint([
    Sketcher.Constraint("Diameter", 0, 3.0),
    Sketcher.Constraint("DistanceX", -1, 1, 0, 3, 48.0),
    Sketcher.Constraint("DistanceY", -1, 1, 0, 3, 40.0),
])
pocket11 = doc.addObject("PartDesign::Pocket", "Pocket010")
body.addObject(pocket11)
pocket11.Profile = sketch13
pocket11.Type = "UpToFirst"
pocket11.Reversed = True

# Sketch on an angled plane
sketch14 = doc.addObject("Sketcher::SketchObject", "Sketch013")
body.addObject(sketch14)
sketch14.Placement = App.Placement(App.Vector(-12.6591, 0, -21.558), App.Rotation(App.Vector(-0.809016994, 0, -0.587785252), App.Vector(0, 0.999999999, 0), App.Vector(0.587785252, 0, -0.809016994), "ZXY"))
sketch14.addGeometry(Part.Circle(App.Vector(25.1, 40, 0), App.Vector(0, 0, 1), 1.5), False)
sketch14.addConstraint([
    Sketcher.Constraint("Diameter", 0, 3.0),
    Sketcher.Constraint("DistanceY", -1, 1, 0, 3, 40.0),
    Sketcher.Constraint("DistanceX", -1, 1, 0, 3, 25.087),
])
pocket12 = doc.addObject("PartDesign::Pocket", "Pocket011")
body.addObject(pocket12)
pocket12.Profile = sketch14
pocket12.Type = "UpToFirst"

# Sketch on an angled plane
sketch15 = doc.addObject("Sketcher::SketchObject", "Sketch014")
body.addObject(sketch15)
sketch15.Placement = App.Placement(App.Vector(-28.2397, 7, -15.5731), App.Rotation(App.Vector(-0.809016994, 0, -0.587785252), App.Vector(0, 0.999999999, 0), App.Vector(0.587785252, 0, -0.809016994), "ZXY"))
sketch15.addGeometry(Part.Circle(App.Vector(5.5, 21.5, 0), App.Vector(0, 0, 1), 1.5), False)
sketch15.addConstraint([
    Sketcher.Constraint("Diameter", 0, 3.0),
    Sketcher.Constraint("DistanceX", -1, 1, 0, 3, 5.5),
    Sketcher.Constraint("DistanceY", -1, 1, 0, 3, 21.5),
])
pocket13 = doc.addObject("PartDesign::Pocket", "Pocket012")
body.addObject(pocket13)
pocket13.Profile = sketch15
pocket13.Type = "UpToFirst"

# Sketch on an angled plane
sketch16 = doc.addObject("Sketcher::SketchObject", "Sketch015")
body.addObject(sketch16)
sketch16.Placement = App.Placement(App.Vector(-24.4148, 0, 5.3777), App.Rotation(App.Vector(-0.809016994, 0, 0.587785252), App.Vector(0, 0.999999999, 0), App.Vector(-0.587785252, 0, -0.809016994), "ZXY"))
sketch16.addGeometry(Part.Circle(App.Vector(25.1, 40, 0), App.Vector(0, 0, 1), 1.5), False)
sketch16.addConstraint([
    Sketcher.Constraint("Diameter", 0, 3.0),
    Sketcher.Constraint("DistanceY", -1, 1, 0, 3, 40.0),
    Sketcher.Constraint("DistanceX", -1, 1, 0, 3, 25.087),
])
pocket14 = doc.addObject("PartDesign::Pocket", "Pocket013")
body.addObject(pocket14)
pocket14.Profile = sketch16
pocket14.Type = "UpToFirst"

# Sketch on an angled plane
sketch17 = doc.addObject("Sketcher::SketchObject", "Sketch016")
body.addObject(sketch17)
sketch17.Placement = App.Placement(App.Vector(-23.5374, 7, 22.0452), App.Rotation(App.Vector(-0.809016994, 0, 0.587785252), App.Vector(0, 0.999999999, 0), App.Vector(-0.587785252, 0, -0.809016994), "ZXY"))
sketch17.addGeometry(Part.Circle(App.Vector(5.5, 21.5, 0), App.Vector(0, 0, 1), 1.5), False)
sketch17.addConstraint([
    Sketcher.Constraint("Diameter", 0, 3.0),
    Sketcher.Constraint("DistanceY", -1, 1, 0, 3, 21.5),
    Sketcher.Constraint("DistanceX", -1, 1, 0, 3, 5.4564),
])
pocket15 = doc.addObject("PartDesign::Pocket", "Pocket014")
body.addObject(pocket15)
pocket15.Profile = sketch17
pocket15.Type = "UpToFirst"

# Sketch on XZ plane
sketch18 = doc.addObject("Sketcher::SketchObject", "Sketch017")
body.addObject(sketch18)
sketch18.AttachmentSupport = (doc.XZ_Plane, [""])
sketch18.MapMode = "FlatFace"
sketch18.AttachmentOffset = App.Placement(App.Vector(0, 0, -10), App.Rotation())
sketch18.addGeometry([
    Part.ArcOfCircle(Part.Circle(App.Vector(0, 0, 0), App.Vector(0, 0, 1), 25), math.radians(-135), math.radians(-9)),  # 0
    Part.LineSegment(App.Vector(-17.6, -17.7, 0), App.Vector(-15.6, -16.3, 0)),  # 1
    Part.LineSegment(App.Vector(-15.6, -16.3, 0), App.Vector(-14.5, -15.5, 0)),  # 2
    Part.LineSegment(App.Vector(-14.5, -15.5, 0), App.Vector(-13.5, -14.8, 0)),  # 3
    Part.ArcOfCircle(Part.Circle(App.Vector(0, 0, 0), App.Vector(0, 0, 1), 20), math.radians(-132), math.radians(-12)),  # 4
    Part.LineSegment(App.Vector(19.6, -4, 0), App.Vector(24.7, -4, 0)),  # 5
    Part.ArcOfCircle(Part.Circle(App.Vector(0, 0, 0), App.Vector(0, 0, 1), 25), math.radians(9), math.radians(135)),  # 6
    Part.LineSegment(App.Vector(24.7, 4, 0), App.Vector(19.6, 4, 0)),  # 7
    Part.ArcOfCircle(Part.Circle(App.Vector(0, 0, 0), App.Vector(0, 0, 1), 20), math.radians(12), math.radians(132)),  # 8
    Part.LineSegment(App.Vector(-13.5, 14.8, 0), App.Vector(-14.5, 15.5, 0)),  # 9
    Part.LineSegment(App.Vector(-14.5, 15.5, 0), App.Vector(-15.6, 16.3, 0)),  # 10
    Part.LineSegment(App.Vector(-15.6, 16.3, 0), App.Vector(-17.6, 17.7, 0)),  # 11
    Part.LineSegment(App.Vector(-20.3, -9.8, 0), App.Vector(-22.3, -11.3, 0)),  # 12
    Part.ArcOfCircle(Part.Circle(App.Vector(0, 0, 0), App.Vector(0, 0, 1), 25), math.radians(153), math.radians(207)),  # 13
    Part.LineSegment(App.Vector(-22.3, 11.3, 0), App.Vector(-20.3, 9.8, 0)),  # 14
    Part.LineSegment(App.Vector(-20.3, 9.8, 0), App.Vector(-19.2, 9, 0)),  # 15
    Part.LineSegment(App.Vector(-19.2, 9, 0), App.Vector(-18.2, 8.3, 0)),  # 16
    Part.ArcOfCircle(Part.Circle(App.Vector(0, 0, 0), App.Vector(0, 0, 1), 20), math.radians(156), math.radians(204)),  # 17
    Part.LineSegment(App.Vector(-18.2, -8.3, 0), App.Vector(-19.2, -9, 0)),  # 18
    Part.LineSegment(App.Vector(-19.2, -9, 0), App.Vector(-20.3, -9.8, 0)),  # 19
], False)
sketch18.addConstraint([
    Sketcher.Constraint("Coincident", 0, 1, 1, 1),
    Sketcher.Constraint("Coincident", 1, 2, 2, 1),
    Sketcher.Constraint("Coincident", 2, 2, 3, 1),
    Sketcher.Constraint("Coincident", 3, 2, 4, 1),
    Sketcher.Constraint("Coincident", 4, 2, 5, 1),
    Sketcher.Constraint("Coincident", 5, 2, 0, 2),
    Sketcher.Constraint("Coincident", 6, 1, 7, 1),
    Sketcher.Constraint("Coincident", 7, 2, 8, 1),
    Sketcher.Constraint("Coincident", 8, 2, 9, 1),
    Sketcher.Constraint("Coincident", 9, 2, 10, 1),
    Sketcher.Constraint("Coincident", 10, 2, 11, 1),
    Sketcher.Constraint("Coincident", 11, 2, 6, 2),
    Sketcher.Constraint("Coincident", 12, 2, 13, 2),
    Sketcher.Constraint("Coincident", 13, 1, 14, 1),
    Sketcher.Constraint("Coincident", 14, 2, 15, 1),
    Sketcher.Constraint("Coincident", 15, 2, 16, 1),
    Sketcher.Constraint("Coincident", 16, 2, 17, 1),
    Sketcher.Constraint("Coincident", 17, 2, 18, 1),
    Sketcher.Constraint("Coincident", 18, 2, 19, 1),
    Sketcher.Constraint("Coincident", 19, 2, 12, 1),
    Sketcher.Constraint("Horizontal", 5),
    Sketcher.Constraint("Horizontal", 7),
    Sketcher.Constraint("Coincident", 0, 3, -1, 1),
    Sketcher.Constraint("Coincident", 4, 3, -1, 1),
    Sketcher.Constraint("Coincident", 6, 3, -1, 1),
    Sketcher.Constraint("Coincident", 8, 3, -1, 1),
    Sketcher.Constraint("Coincident", 13, 3, -1, 1),
    Sketcher.Constraint("Coincident", 17, 3, -1, 1),
    Sketcher.Constraint("Equal", 0, 6),
    Sketcher.Constraint("Equal", 4, 8),
    Sketcher.Constraint("Equal", 6, 13),
    Sketcher.Constraint("Equal", 8, 17),
    Sketcher.Constraint("Symmetric", 2, 2, 9, 2, -1),
    Sketcher.Constraint("Symmetric", 1, 2, 10, 2, -1),
    Sketcher.Constraint("Symmetric", 15, 2, 18, 2, -1),
    Sketcher.Constraint("Symmetric", 14, 2, 19, 2, -1),
    Sketcher.Constraint("Parallel", 1, 2),
    Sketcher.Constraint("Parallel", 2, 3),
    Sketcher.Constraint("Parallel", 9, 10),
    Sketcher.Constraint("Parallel", 10, 11),
    Sketcher.Constraint("Parallel", 3, 12),
    Sketcher.Constraint("Parallel", 11, 14),
    Sketcher.Constraint("Parallel", 14, 15),
    Sketcher.Constraint("Parallel", 15, 16),
    Sketcher.Constraint("Parallel", 12, 18),
    Sketcher.Constraint("Vertical", 5, 2, 6, 1),
    Sketcher.Constraint("Equal", 11, 12),
    Sketcher.Constraint("Equal", 10, 15),
    Sketcher.Constraint("Equal", 9, 16),
    Sketcher.Constraint("Radius", 4, 20.0),
    Sketcher.Constraint("Angle", 1, Q("36 deg")),
    Sketcher.Constraint("Radius", 0, 25.0),
    Sketcher.Constraint("DistanceY", 4, 2, -1, 1, 4.0),
    Sketcher.Constraint("DistanceX", 12, 2, -1, 1, 22.316),
    Sketcher.Constraint("DistanceX", 14, 2, -1, 1, 20.264),
    Sketcher.Constraint("DistanceY", -1, 1, 15, 2, 9.031),
])
pad3 = doc.addObject("PartDesign::Pad", "Pad002")
body.addObject(pad3)
pad3.Profile = sketch18
pad3.Length = 23
pad3.Reversed = True

# Sketch on XZ plane
sketch19 = doc.addObject("Sketcher::SketchObject", "Sketch018")
body.addObject(sketch19)
sketch19.AttachmentSupport = (doc.XZ_Plane, [""])
sketch19.MapMode = "FlatFace"
sketch19.AttachmentOffset = App.Placement(App.Vector(0, 0, -33), App.Rotation())
sketch19.addGeometry([
    Part.Circle(App.Vector(-22.5, 0, 0), App.Vector(0, 0, 1), 1.5),  # 0
    Part.Circle(App.Vector(0, -22.5, 0), App.Vector(0, 0, 1), 1.5),  # 1
    Part.Circle(App.Vector(18.2, -13.2, 0), App.Vector(0, 0, 1), 1.5),  # 2
    Part.Circle(App.Vector(18.2, 13.2, 0), App.Vector(0, 0, 1), 1.5),  # 3
    Part.Circle(App.Vector(0, 22.5, 0), App.Vector(0, 0, 1), 1.5),  # 4
], False)
sketch19.addConstraint([
    Sketcher.Constraint("Equal", 0, 1),
    Sketcher.Constraint("Equal", 1, 2),
    Sketcher.Constraint("Equal", 2, 3),
    Sketcher.Constraint("Equal", 3, 4),
    Sketcher.Constraint("Symmetric", 1, 3, 4, 3, -1, 1),
    Sketcher.Constraint("Symmetric", 2, 3, 3, 3, -1),
    Sketcher.Constraint("PointOnObject", 0, 3, -1),
    Sketcher.Constraint("PointOnObject", 1, 3, -2),
    Sketcher.Constraint("Diameter", 0, 3.0),
    Sketcher.Constraint("DistanceY", 1, 3, 4, 3, 45.0),
    Sketcher.Constraint("DistanceX", 0, 3, -1, 1, 22.5),
    Sketcher.Constraint("DistanceX", -1, 1, 2, 3, 18.203),
    Sketcher.Constraint("DistanceY", 2, 3, -1, 1, 13.2252),
])
pocket16 = doc.addObject("PartDesign::Pocket", "Pocket015")
body.addObject(pocket16)
pocket16.Profile = sketch19
pocket16.Length = 10
pocket16.Reversed = True

# Sketch on XZ plane
sketch20 = doc.addObject("Sketcher::SketchObject", "Sketch019")
body.addObject(sketch20)
sketch20.AttachmentSupport = (doc.XZ_Plane, [""])
sketch20.MapMode = "FlatFace"
sketch20.AttachmentOffset = App.Placement(App.Vector(0, 0, -45), App.Rotation())
sketch20.addGeometry([
    Part.Circle(App.Vector(-42.9, 22.6, 0), App.Vector(0, 0, 1), 1.5),  # 0
    Part.Circle(App.Vector(-26.2, 27.7, 0), App.Vector(0, 0, 1), 1.5),  # 1
    Part.Circle(App.Vector(48, 7, 0), App.Vector(0, 0, 1), 1.5),  # 2
    Part.Circle(App.Vector(37.5, -7, 0), App.Vector(0, 0, 1), 1.5),  # 3
    Part.Circle(App.Vector(-34.7, -33.9, 0), App.Vector(0, 0, 1), 1.5),  # 4
    Part.Circle(App.Vector(-34.5, -16.4, 0), App.Vector(0, 0, 1), 1.5),  # 5
], False)
sketch20.addConstraint([
    Sketcher.Constraint("Equal", 0, 1),
    Sketcher.Constraint("Equal", 1, 2),
    Sketcher.Constraint("Equal", 2, 3),
    Sketcher.Constraint("Equal", 3, 4),
    Sketcher.Constraint("Equal", 4, 5),
    Sketcher.Constraint("Diameter", 0, 3.0),
    Sketcher.Constraint("DistanceX", -1, 1, 2, 3, 48.0),
    Sketcher.Constraint("DistanceY", -1, 1, 2, 3, 7.0),
    Sketcher.Constraint("DistanceY", 3, 3, -1, 1, 7.0),
    Sketcher.Constraint("DistanceX", -1, 1, 3, 3, 37.5),
    Sketcher.Constraint("DistanceY", 0, 3, 1, 3, 5.131),
    Sketcher.Constraint("DistanceX", 0, 3, 4, 3, 8.229),
    Sketcher.Constraint("DistanceY", 4, 3, 5, 3, 17.498),
    Sketcher.Constraint("DistanceX", 5, 3, 1, 3, 8.212),
    Sketcher.Constraint("DistanceX", 0, 3, -1, 1, 42.9473),
    Sketcher.Constraint("DistanceY", -1, 1, 0, 3, 22.5506),
    Sketcher.Constraint("DistanceX", 1, 3, -1, 1, 26.2405),
    Sketcher.Constraint("DistanceY", 4, 3, -1, 1, 33.8768),
])
pocket17 = doc.addObject("PartDesign::Pocket", "Pocket016")
body.addObject(pocket17)
pocket17.Profile = sketch20
pocket17.Length = 3
pocket17.Reversed = True

# Sketch on XZ plane
sketch21 = doc.addObject("Sketcher::SketchObject", "Sketch020")
body.addObject(sketch21)
sketch21.AttachmentSupport = (doc.XZ_Plane, [""])
sketch21.MapMode = "FlatFace"
sketch21.AttachmentOffset = App.Placement(App.Vector(0, 0, -33), App.Rotation())
sketch21.addGeometry([
    Part.ArcOfCircle(Part.Circle(App.Vector(0, 0, 0), App.Vector(0, 0, 1), 25), math.radians(-24), math.radians(24)),
    Part.LineSegment(App.Vector(23, -10, 0), App.Vector(23, -88, 0)),
    Part.ArcOfCircle(Part.Circle(App.Vector(0, 0, 0), App.Vector(0, 0, 1), 91), math.radians(75), math.radians(285)),
    Part.LineSegment(App.Vector(23, 88, 0), App.Vector(23, 10, 0)),
], False)
sketch21.addConstraint([
    Sketcher.Constraint("Coincident", 0, 1, 1, 1),
    Sketcher.Constraint("Coincident", 1, 2, 2, 2),
    Sketcher.Constraint("Coincident", 2, 1, 3, 1),
    Sketcher.Constraint("Coincident", 3, 2, 0, 2),
    Sketcher.Constraint("Vertical", 1),
    Sketcher.Constraint("Vertical", 3),
    Sketcher.Constraint("Coincident", 0, 3, -1, 1),
    Sketcher.Constraint("Coincident", 2, 3, -1, 1),
    Sketcher.Constraint("Vertical", 1, 2, 2, 1),
    Sketcher.Constraint("Radius", 0, 25.0),
    Sketcher.Constraint("DistanceY", 0, 1, -1, 1, 10.0),
    Sketcher.Constraint("Radius", 2, 91.0936),
])
pocket18 = doc.addObject("PartDesign::Pocket", "Pocket017")
body.addObject(pocket18)
pocket18.Profile = sketch21
pocket18.Type = "ThroughAll"
pocket18.Midplane = True

# Sketch on XZ plane
sketch22 = doc.addObject("Sketcher::SketchObject", "Sketch021")
body.addObject(sketch22)
sketch22.AttachmentSupport = (doc.XZ_Plane, [""])
sketch22.MapMode = "FlatFace"
sketch22.AttachmentOffset = App.Placement(App.Vector(0, 0, -10), App.Rotation())
sketch22.addGeometry([
    Part.ArcOfCircle(Part.Circle(App.Vector(0, 0, 0), App.Vector(0, 0, 1), 25), math.radians(-9.21), math.radians(9.21)),
    Part.LineSegment(App.Vector(25, -4, 0), App.Vector(20, -4, 0)),
    Part.LineSegment(App.Vector(20, -4, 0), App.Vector(20, 4, 0)),
    Part.LineSegment(App.Vector(20, 4, 0), App.Vector(25, 4, 0)),
], False)
sketch22.addConstraint([
    Sketcher.Constraint("Coincident", 0, 1, 1, 1),
    Sketcher.Constraint("Coincident", 1, 2, 2, 1),
    Sketcher.Constraint("Coincident", 2, 2, 3, 1),
    Sketcher.Constraint("Coincident", 3, 2, 0, 2),
    Sketcher.Constraint("Horizontal", 1),
    Sketcher.Constraint("Vertical", 2),
    Sketcher.Constraint("Horizontal", 3),
    Sketcher.Constraint("Coincident", 0, 3, -1, 1),
    Sketcher.Constraint("Vertical", 0, 1, 3, 2),
    Sketcher.Constraint("DistanceY", 2, 1, 2, 2, 8.0),
    Sketcher.Constraint("Radius", 0, 25.0),
    Sketcher.Constraint("DistanceX", 1, 2, 1, 1, 5.082),
])
pad4 = doc.addObject("PartDesign::Pad", "Pad003")
body.addObject(pad4)
pad4.Profile = sketch22
pad4.Length = 10

doc.recompute()
